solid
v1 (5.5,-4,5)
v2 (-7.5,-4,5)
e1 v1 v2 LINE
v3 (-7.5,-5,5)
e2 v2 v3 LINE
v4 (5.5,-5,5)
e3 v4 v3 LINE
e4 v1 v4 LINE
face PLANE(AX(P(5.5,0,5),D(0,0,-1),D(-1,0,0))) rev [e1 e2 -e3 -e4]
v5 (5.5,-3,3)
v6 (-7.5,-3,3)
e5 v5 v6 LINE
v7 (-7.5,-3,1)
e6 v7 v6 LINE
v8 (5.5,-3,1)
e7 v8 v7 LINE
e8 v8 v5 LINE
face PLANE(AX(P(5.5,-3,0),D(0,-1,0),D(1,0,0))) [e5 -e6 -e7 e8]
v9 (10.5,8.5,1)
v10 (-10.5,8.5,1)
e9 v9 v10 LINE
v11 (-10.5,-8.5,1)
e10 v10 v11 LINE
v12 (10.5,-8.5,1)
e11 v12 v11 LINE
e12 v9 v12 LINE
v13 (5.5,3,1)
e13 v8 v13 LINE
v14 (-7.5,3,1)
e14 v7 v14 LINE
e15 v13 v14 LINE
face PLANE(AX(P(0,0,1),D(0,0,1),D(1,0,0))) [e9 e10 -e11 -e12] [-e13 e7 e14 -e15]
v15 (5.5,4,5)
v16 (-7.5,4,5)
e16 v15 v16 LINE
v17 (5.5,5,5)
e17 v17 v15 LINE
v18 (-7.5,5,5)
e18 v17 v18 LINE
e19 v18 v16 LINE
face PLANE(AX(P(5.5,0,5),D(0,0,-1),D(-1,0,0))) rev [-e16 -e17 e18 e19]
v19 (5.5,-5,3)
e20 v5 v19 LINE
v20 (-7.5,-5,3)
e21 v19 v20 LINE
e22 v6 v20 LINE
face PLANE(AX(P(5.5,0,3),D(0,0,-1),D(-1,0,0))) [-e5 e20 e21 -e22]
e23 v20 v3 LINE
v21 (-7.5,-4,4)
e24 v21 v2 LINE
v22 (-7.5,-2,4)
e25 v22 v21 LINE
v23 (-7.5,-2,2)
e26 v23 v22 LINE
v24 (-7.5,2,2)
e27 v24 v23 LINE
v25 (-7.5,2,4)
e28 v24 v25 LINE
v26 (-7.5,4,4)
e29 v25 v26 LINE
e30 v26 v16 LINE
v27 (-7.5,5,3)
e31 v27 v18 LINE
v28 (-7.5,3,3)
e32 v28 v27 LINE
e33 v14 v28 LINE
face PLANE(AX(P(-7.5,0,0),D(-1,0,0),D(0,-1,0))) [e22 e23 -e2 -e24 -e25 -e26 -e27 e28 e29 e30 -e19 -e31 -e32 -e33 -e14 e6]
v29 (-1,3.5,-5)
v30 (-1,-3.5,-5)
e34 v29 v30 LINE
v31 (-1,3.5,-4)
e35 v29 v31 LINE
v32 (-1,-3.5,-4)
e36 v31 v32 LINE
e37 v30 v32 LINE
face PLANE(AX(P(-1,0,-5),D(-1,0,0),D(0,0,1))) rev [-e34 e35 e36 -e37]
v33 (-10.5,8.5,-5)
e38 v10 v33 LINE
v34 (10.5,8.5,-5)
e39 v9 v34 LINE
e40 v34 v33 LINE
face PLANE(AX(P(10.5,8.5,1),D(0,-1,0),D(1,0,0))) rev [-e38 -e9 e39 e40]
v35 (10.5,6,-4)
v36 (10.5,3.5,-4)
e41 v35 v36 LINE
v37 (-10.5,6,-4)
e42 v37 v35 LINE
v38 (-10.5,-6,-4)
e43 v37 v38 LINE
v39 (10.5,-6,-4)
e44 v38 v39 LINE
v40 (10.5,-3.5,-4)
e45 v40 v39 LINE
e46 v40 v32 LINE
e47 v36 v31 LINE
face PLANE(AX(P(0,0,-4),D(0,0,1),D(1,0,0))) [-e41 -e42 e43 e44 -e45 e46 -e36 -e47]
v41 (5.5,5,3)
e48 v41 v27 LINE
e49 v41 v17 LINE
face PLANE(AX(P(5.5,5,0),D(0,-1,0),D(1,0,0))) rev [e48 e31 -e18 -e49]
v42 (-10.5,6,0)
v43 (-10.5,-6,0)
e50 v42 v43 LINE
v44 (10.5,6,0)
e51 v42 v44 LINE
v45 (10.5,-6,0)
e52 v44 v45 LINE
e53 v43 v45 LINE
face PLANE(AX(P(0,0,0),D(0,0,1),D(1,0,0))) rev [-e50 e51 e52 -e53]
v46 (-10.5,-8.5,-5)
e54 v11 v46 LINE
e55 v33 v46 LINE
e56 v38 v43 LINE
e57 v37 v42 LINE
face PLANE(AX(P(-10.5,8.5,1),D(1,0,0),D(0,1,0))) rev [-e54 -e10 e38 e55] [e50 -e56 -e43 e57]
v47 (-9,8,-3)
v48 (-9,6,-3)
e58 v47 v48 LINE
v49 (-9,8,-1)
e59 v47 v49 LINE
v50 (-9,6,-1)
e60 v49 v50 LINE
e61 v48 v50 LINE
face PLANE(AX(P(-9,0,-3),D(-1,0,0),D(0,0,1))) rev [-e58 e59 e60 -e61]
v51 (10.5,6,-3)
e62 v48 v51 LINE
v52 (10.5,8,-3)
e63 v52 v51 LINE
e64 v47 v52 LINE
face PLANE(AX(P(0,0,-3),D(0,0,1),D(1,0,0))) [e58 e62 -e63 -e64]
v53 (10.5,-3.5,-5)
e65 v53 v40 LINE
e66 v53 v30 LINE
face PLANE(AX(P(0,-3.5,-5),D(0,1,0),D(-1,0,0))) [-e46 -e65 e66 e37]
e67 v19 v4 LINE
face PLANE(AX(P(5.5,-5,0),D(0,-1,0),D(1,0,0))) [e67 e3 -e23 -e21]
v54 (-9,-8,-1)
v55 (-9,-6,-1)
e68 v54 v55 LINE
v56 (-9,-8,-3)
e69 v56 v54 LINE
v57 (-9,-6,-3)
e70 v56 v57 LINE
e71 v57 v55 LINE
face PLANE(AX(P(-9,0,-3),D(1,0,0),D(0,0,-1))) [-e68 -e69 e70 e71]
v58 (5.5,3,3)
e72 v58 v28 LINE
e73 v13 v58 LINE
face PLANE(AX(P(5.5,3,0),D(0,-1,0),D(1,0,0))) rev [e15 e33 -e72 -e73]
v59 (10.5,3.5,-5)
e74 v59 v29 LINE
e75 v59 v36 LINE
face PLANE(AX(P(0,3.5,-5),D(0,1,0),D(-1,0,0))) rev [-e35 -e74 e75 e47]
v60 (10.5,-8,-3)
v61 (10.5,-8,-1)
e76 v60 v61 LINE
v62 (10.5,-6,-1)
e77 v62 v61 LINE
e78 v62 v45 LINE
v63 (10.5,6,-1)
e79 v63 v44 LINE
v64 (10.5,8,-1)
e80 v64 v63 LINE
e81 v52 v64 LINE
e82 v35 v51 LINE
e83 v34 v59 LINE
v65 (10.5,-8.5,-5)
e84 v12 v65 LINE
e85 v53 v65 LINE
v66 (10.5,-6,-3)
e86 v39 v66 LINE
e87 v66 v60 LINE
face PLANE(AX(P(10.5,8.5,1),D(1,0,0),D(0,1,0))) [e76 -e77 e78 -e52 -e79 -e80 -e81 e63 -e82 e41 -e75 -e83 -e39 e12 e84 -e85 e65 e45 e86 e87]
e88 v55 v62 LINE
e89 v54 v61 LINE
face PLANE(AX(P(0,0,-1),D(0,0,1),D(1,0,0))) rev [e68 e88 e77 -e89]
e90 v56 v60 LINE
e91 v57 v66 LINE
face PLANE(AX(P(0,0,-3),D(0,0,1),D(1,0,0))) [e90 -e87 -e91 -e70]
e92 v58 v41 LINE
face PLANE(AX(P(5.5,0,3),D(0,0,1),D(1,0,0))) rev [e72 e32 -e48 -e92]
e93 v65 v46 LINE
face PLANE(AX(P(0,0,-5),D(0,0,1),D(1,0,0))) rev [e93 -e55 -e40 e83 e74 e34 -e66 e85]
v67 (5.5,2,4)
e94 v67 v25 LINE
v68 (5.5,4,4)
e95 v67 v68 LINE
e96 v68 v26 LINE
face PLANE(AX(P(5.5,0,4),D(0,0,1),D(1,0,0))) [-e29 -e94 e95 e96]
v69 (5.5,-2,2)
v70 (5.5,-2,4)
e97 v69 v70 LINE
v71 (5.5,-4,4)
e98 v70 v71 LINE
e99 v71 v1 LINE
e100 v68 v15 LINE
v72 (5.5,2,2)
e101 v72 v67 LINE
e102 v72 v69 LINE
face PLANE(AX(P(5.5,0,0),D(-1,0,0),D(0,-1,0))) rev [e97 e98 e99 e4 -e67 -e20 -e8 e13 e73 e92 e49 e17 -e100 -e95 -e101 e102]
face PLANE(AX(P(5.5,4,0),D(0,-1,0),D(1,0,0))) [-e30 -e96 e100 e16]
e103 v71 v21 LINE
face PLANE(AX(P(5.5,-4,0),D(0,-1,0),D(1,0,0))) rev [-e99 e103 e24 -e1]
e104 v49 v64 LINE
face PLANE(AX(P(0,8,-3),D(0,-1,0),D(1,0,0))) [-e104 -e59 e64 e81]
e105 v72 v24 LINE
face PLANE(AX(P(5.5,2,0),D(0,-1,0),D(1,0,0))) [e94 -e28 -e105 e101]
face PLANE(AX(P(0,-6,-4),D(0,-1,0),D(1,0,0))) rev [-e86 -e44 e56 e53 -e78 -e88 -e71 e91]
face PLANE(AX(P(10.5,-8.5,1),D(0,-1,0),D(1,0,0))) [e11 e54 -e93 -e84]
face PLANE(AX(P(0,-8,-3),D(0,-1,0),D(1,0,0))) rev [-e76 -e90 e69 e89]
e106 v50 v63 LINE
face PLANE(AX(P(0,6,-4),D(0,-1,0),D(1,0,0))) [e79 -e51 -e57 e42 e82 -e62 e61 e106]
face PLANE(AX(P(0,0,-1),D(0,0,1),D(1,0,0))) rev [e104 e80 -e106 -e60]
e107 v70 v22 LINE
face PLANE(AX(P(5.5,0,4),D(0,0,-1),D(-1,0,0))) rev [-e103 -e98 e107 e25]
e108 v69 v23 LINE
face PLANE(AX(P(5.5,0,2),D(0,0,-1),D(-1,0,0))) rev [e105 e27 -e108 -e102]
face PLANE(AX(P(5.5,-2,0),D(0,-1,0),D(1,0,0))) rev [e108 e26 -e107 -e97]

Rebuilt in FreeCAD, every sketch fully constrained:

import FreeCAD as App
import Part
import Sketcher
from FreeCAD import Vector


def add_polygon(sketch, points):
    """Adds a closed chain of lines whose ends are joined by coincident constraints."""
    first, n = sketch.GeometryCount, len(points)
    for a, b in zip(points, points[1:] + points[:1]):
        sketch.addGeometry(Part.LineSegment(App.Vector(*a, 0), App.Vector(*b, 0)), False)
    for i in range(n):
        sketch.addConstraint(Sketcher.Constraint("Coincident", first + i, 2, first + (i + 1) % n, 1))

doc = App.newDocument("Part")
body = doc.addObject("PartDesign::Body", "Body")

# Sketch on XY plane
sketch1 = body.newObject("Sketcher::SketchObject", "Sketch")
sketch1.AttachmentSupport = (doc.getObject("XY_Plane"), [""])
sketch1.MapMode = "FlatFace"
add_polygon(sketch1, [(-10, 8), (-10, -8), (10, -8), (10, 8)])  # lines 0-3
sketch1.addConstraint([
    Sketcher.Constraint("Vertical", 0),
    Sketcher.Constraint("Horizontal", 1),
    Sketcher.Constraint("Vertical", 2),
    Sketcher.Constraint("Horizontal", 3),
    Sketcher.Constraint("Symmetric", 0, 2, 2, 2, -1, 1),
    Sketcher.Constraint("DistanceX", 1, 1, 1, 2, 21.0),
    Sketcher.Constraint("DistanceY", 0, 2, 0, 1, 17.0),
])
pad1 = body.newObject("PartDesign::Pad", "Pad")
pad1.Profile = sketch1
pad1.Length = 1
body2 = doc.addObject("PartDesign::Body", "Body001")

# Sketch on XY plane
sketch2 = body2.newObject("Sketcher::SketchObject", "Sketch001")
sketch2.AttachmentSupport = (doc.getObject("XY_Plane001"), [""])
sketch2.MapMode = "FlatFace"
sketch2.AttachmentOffset = App.Placement(Vector(0, 0, -4), App.Rotation())
add_polygon(sketch2, [(-10, 8), (-10, -8), (10, -8), (10, -4), (-1, -4), (-1, 4), (10, 4), (10, 8)])  # lines 0-7
sketch2.addConstraint([
    Sketcher.Constraint("Vertical", 0),
    Sketcher.Constraint("Horizontal", 1),
    Sketcher.Constraint("Vertical", 2),
    Sketcher.Constraint("Horizontal", 3),
    Sketcher.Constraint("Vertical", 4),
    Sketcher.Constraint("Horizontal", 5),
    Sketcher.Constraint("Vertical", 6),
    Sketcher.Constraint("Horizontal", 7),
    Sketcher.Constraint("Symmetric", 0, 2, 6, 2, -1, 1),
    Sketcher.Constraint("Symmetric", 2, 2, 5, 2, -1),
    Sketcher.Constraint("DistanceX", 1, 1, 1, 2, 21.0),
    Sketcher.Constraint("DistanceY", 0, 2, 0, 1, 17.0),
    Sketcher.Constraint("DistanceY", 2, 1, 2, 2, 5.0),
    Sketcher.Constraint("DistanceX", 3, 2, 3, 1, 11.5),
])
pad2 = body2.newObject("PartDesign::Pad", "Pad001")
pad2.Profile = sketch2
pad2.Length = 1
pad2.Reversed = True
body.AllowCompound = True
doc.recompute()

boolean = body.newObject("PartDesign::Boolean", "Boolean")
boolean.Type = "Fuse"
boolean.addObjects([body2])

# Sketch on XY plane
sketch3 = body.newObject("Sketcher::SketchObject", "Sketch002")
sketch3.AttachmentSupport = (doc.getObject("XY_Plane"), [""])
sketch3.MapMode = "FlatFace"
add_polygon(sketch3, [(-10.5, 8.5), (-10.5, 6), (10.5, 6), (10.5, 8.5)])  # lines 0-3
add_polygon(sketch3, [(-10.5, -6), (-10.5, -8.5), (10.5, -8.5), (10.5, -6)])  # lines 4-7
sketch3.addConstraint([
    Sketcher.Constraint("Vertical", 0),
    Sketcher.Constraint("Horizontal", 1),
    Sketcher.Constraint("Vertical", 2),
    Sketcher.Constraint("Horizontal", 3),
    Sketcher.Constraint("Vertical", 4),
    Sketcher.Constraint("Horizontal", 5),
    Sketcher.Constraint("Vertical", 6),
    Sketcher.Constraint("Horizontal", 7),
    Sketcher.Constraint("Symmetric", 2, 2, 4, 2, -1, 1),
    Sketcher.Constraint("Symmetric", 0, 2, 6, 2, -1, 1),
    Sketcher.Constraint("Vertical", 3, 2, 4, 2),
    Sketcher.Constraint("DistanceX", 1, 1, 1, 2, 21.0),
    Sketcher.Constraint("DistanceY", 0, 2, 0, 1, 2.5),
    Sketcher.Constraint("DistanceY", -1, 1, 0, 2, 6.0),
])
pad3 = body.newObject("PartDesign::Pad", "Pad002")
pad3.Profile = sketch3
pad3.Length = 4
pad3.Reversed = True

# Sketch on XY plane
sketch4 = body.newObject("Sketcher::SketchObject", "Sketch003")
sketch4.AttachmentSupport = (doc.getObject("XY_Plane"), [""])
sketch4.MapMode = "FlatFace"
sketch4.AttachmentOffset = App.Placement(Vector(0, 0, -1), App.Rotation())
add_polygon(sketch4, [(-9, -6), (-9, -8), (10.5, -8), (10.5, -6)])  # lines 0-3
add_polygon(sketch4, [(-9, 8), (-9, 6), (10.5, 6), (10.5, 8)])  # lines 4-7
sketch4.addConstraint([
    Sketcher.Constraint("Vertical", 0),
    Sketcher.Constraint("Horizontal", 1),
    Sketcher.Constraint("Vertical", 2),
    Sketcher.Constraint("Horizontal", 3),
    Sketcher.Constraint("Vertical", 4),
    Sketcher.Constraint("Horizontal", 5),
    Sketcher.Constraint("Vertical", 6),
    Sketcher.Constraint("Horizontal", 7),
    Sketcher.Constraint("Symmetric", 3, 2, 4, 2, -1),
    Sketcher.Constraint("Symmetric", 1, 2, 6, 2, -1),
    Sketcher.Constraint("DistanceY", 0, 2, 0, 1, 2.0),
    Sketcher.Constraint("DistanceX", 1, 1, 1, 2, 19.5),
    Sketcher.Constraint("DistanceX", 0, 2, -1, 1, 9.0),
    Sketcher.Constraint("DistanceY", 0, 2, -1, 1, 8.0),
])
pocket1 = body.newObject("PartDesign::Pocket", "Pocket")
pocket1.Profile = sketch4
pocket1.Length = 2

# Sketch on YZ plane
sketch5 = body.newObject("Sketcher::SketchObject", "Sketch004")
sketch5.AttachmentSupport = (doc.getObject("YZ_Plane"), [""])
sketch5.MapMode = "FlatFace"
sketch5.AttachmentOffset = App.Placement(Vector(0, 0, -7.5), App.Rotation())
add_polygon(sketch5, [(3, 3), (3, 1), (-3, 1), (-3, 3), (-5, 3), (-5, 5), (-4, 5), (-4, 4), (-2, 4), (-2, 2), (2, 2), (2, 4), (4, 4), (4, 5), (5, 5), (5, 3)])  # lines 0-15
sketch5.addConstraint([
    Sketcher.Constraint("Vertical", 0),
    Sketcher.Constraint("Horizontal", 1),
    Sketcher.Constraint("Vertical", 2),
    Sketcher.Constraint("Horizontal", 3),
    Sketcher.Constraint("Vertical", 4),
    Sketcher.Constraint("Horizontal", 5),
    Sketcher.Constraint("Vertical", 6),
    Sketcher.Constraint("Horizontal", 7),
    Sketcher.Constraint("Vertical", 8),
    Sketcher.Constraint("Horizontal", 9),
    Sketcher.Constraint("Vertical", 10),
    Sketcher.Constraint("Horizontal", 11),
    Sketcher.Constraint("Vertical", 12),
    Sketcher.Constraint("Horizontal", 13),
    Sketcher.Constraint("Vertical", 14),
    Sketcher.Constraint("Horizontal", 15),
    Sketcher.Constraint("Symmetric", 7, 2, 10, 2, -2),
    Sketcher.Constraint("Symmetric", 5, 2, 12, 2, -2),
    Sketcher.Constraint("Symmetric", 3, 2, 14, 2, -2),
    Sketcher.Constraint("Equal", 3, 7),
    Sketcher.Constraint("Equal", 11, 15),
    Sketcher.Constraint("Equal", 15, 0),
    Sketcher.Constraint("Equal", 2, 4),
    Sketcher.Constraint("Equal", 13, 6),
    Sketcher.Constraint("Equal", 4, 8),
    Sketcher.Constraint("DistanceX", 1, 2, 1, 1, 6.0),
    Sketcher.Constraint("DistanceX", 3, 2, 3, 1, 2.0),
    Sketcher.Constraint("DistanceX", 5, 1, 5, 2, 1.0),
    Sketcher.Constraint("DistanceY", -1, 1, 0, 2, 1.0),
])
pad4 = body.newObject("PartDesign::Pad", "Pad003")
pad4.Profile = sketch5
pad4.Length = 13

doc.recompute()
